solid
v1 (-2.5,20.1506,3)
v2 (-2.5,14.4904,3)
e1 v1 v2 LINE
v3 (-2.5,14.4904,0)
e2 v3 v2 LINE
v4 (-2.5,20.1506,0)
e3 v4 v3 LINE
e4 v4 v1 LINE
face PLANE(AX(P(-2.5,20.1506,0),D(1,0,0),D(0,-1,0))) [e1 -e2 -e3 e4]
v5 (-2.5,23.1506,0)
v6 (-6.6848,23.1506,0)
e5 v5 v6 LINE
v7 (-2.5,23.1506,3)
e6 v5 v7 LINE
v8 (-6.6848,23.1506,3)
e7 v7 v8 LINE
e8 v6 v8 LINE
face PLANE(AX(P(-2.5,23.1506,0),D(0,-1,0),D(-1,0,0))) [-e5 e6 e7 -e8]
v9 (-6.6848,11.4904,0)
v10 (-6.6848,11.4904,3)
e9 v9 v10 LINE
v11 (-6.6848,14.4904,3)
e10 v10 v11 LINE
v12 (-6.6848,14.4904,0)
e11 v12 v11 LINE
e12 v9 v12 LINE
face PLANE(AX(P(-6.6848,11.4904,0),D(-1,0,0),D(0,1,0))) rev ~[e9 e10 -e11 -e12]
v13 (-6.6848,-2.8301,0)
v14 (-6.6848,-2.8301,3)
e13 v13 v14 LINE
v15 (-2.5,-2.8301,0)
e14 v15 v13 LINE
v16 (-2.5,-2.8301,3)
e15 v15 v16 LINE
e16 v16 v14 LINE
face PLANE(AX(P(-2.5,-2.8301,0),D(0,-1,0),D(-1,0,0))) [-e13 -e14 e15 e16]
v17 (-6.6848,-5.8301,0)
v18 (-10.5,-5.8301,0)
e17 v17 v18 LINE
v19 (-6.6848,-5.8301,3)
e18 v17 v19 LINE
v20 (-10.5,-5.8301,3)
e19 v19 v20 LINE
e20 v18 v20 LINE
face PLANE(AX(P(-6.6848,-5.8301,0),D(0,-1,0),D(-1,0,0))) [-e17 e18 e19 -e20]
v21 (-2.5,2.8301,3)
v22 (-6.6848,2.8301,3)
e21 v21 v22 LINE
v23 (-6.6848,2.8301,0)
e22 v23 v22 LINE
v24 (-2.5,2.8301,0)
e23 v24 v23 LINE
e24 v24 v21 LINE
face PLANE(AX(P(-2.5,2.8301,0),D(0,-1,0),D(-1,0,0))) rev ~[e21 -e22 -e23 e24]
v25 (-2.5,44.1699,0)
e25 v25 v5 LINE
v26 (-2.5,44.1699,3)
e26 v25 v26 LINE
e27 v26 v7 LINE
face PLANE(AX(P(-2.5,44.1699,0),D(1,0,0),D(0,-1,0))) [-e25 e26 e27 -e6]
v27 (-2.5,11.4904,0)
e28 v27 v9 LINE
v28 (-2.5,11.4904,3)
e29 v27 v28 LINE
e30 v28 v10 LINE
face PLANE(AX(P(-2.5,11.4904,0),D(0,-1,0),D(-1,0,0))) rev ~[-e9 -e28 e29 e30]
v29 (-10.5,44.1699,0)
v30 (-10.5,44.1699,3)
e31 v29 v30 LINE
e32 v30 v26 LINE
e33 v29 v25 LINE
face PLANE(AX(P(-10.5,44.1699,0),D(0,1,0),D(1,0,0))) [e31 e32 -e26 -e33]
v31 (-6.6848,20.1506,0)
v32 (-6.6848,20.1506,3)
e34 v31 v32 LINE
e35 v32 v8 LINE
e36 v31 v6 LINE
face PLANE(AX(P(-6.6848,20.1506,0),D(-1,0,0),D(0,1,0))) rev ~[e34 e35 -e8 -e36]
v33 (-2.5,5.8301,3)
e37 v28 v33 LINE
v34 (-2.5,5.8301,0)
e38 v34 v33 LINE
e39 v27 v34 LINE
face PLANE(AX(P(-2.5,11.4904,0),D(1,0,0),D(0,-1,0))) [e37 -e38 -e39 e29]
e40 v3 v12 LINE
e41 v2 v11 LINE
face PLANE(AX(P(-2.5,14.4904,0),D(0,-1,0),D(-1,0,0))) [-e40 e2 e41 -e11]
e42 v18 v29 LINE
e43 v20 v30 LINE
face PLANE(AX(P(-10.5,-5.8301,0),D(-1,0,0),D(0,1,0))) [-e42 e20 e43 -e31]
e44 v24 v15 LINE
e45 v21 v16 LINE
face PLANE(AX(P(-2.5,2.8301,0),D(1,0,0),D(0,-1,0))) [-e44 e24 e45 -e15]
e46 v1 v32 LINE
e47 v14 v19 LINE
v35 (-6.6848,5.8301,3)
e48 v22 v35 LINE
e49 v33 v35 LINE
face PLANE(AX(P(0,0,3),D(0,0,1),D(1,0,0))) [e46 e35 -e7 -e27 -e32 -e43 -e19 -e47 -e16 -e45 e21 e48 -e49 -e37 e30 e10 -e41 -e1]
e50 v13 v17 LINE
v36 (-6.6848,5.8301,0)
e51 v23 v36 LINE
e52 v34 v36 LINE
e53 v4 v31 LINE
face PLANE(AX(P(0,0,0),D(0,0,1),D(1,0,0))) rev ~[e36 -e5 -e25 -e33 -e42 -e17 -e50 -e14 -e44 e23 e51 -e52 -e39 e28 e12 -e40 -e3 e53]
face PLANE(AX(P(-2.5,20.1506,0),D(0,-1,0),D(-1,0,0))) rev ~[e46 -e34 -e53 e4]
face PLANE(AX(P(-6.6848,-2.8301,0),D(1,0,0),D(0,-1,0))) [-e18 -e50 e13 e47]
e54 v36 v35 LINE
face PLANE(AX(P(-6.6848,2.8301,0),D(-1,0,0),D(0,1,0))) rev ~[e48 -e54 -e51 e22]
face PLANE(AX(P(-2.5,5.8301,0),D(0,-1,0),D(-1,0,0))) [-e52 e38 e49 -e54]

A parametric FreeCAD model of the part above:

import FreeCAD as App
import Part
import Sketcher
from FreeCAD import Vector
Q = App.Units.Quantity

doc = App.newDocument("Part")
params = doc.addObject("Spreadsheet::Sheet", "Params")
for row, (alias, value) in enumerate([
    ("sketch1_width", "8 mm"),
    ("sketch1_height", "3 mm"),
    ("sketch1_height2", "50 mm"),
    ("pad1_length", "3 mm"),
], start=1):
    params.set(f"A{row}", alias)
    params.set(f"B{row}", "=" + value)
    params.setAlias(f"B{row}", alias)

body = doc.addObject("PartDesign::Body", "Body")

# Sketch on XY plane
sketch1 = body.newObject("Sketcher::SketchObject", "Sketch")
sketch1.AttachmentSupport = (doc.getObject("XY_Plane"), [""])
sketch1.MapMode = "FlatFace"
sketch1.addGeometry([
    Part.LineSegment(Vector(-6.7, 5.8, 0), Vector(-2.5, 5.8, 0)),  # 0
    Part.LineSegment(Vector(-2.5, 5.8, 0), Vector(-2.5, 11.5, 0)),  # 1
    Part.LineSegment(Vector(-2.5, 11.5, 0), Vector(-6.7, 11.5, 0)),  # 2
    Part.LineSegment(Vector(-6.7, 11.5, 0), Vector(-6.7, 14.5, 0)),  # 3
    Part.LineSegment(Vector(-6.7, 14.5, 0), Vector(-2.5, 14.5, 0)),  # 4
    Part.LineSegment(Vector(-2.5, 14.5, 0), Vector(-2.5, 20.2, 0)),  # 5
    Part.LineSegment(Vector(-2.5, 20.2, 0), Vector(-6.7, 20.2, 0)),  # 6
    Part.LineSegment(Vector(-6.7, 20.2, 0), Vector(-6.7, 23.2, 0)),  # 7
    Part.LineSegment(Vector(-6.7, 23.2, 0), Vector(-2.5, 23.2, 0)),  # 8
    Part.LineSegment(Vector(-2.5, 23.2, 0), Vector(-2.5, 44.2, 0)),  # 9
    Part.LineSegment(Vector(-2.5, 44.2, 0), Vector(-10.5, 44.2, 0)),  # 10
    Part.LineSegment(Vector(-10.5, 44.2, 0), Vector(-10.5, -5.8, 0)),  # 11
    Part.LineSegment(Vector(-10.5, -5.8, 0), Vector(-6.7, -5.8, 0)),  # 12
    Part.LineSegment(Vector(-6.7, -5.8, 0), Vector(-6.7, -2.8, 0)),  # 13
    Part.LineSegment(Vector(-6.7, -2.8, 0), Vector(-2.5, -2.8, 0)),  # 14
    Part.LineSegment(Vector(-2.5, -2.8, 0), Vector(-2.5, 2.8, 0)),  # 15
    Part.LineSegment(Vector(-2.5, 2.8, 0), Vector(-6.7, 2.8, 0)),  # 16
    Part.LineSegment(Vector(-6.7, 2.8, 0), Vector(-6.7, 5.8, 0)),  # 17
], False)
sketch1.addConstraint([
    Sketcher.Constraint("Coincident", 0, 2, 1, 1),
    Sketcher.Constraint("Coincident", 1, 2, 2, 1),
    Sketcher.Constraint("Coincident", 2, 2, 3, 1),
    Sketcher.Constraint("Coincident", 3, 2, 4, 1),
    Sketcher.Constraint("Coincident", 4, 2, 5, 1),
    Sketcher.Constraint("Coincident", 5, 2, 6, 1),
    Sketcher.Constraint("Coincident", 6, 2, 7, 1),
    Sketcher.Constraint("Coincident", 7, 2, 8, 1),
    Sketcher.Constraint("Coincident", 8, 2, 9, 1),
    Sketcher.Constraint("Coincident", 9, 2, 10, 1),
    Sketcher.Constraint("Coincident", 10, 2, 11, 1),
    Sketcher.Constraint("Coincident", 11, 2, 12, 1),
    Sketcher.Constraint("Coincident", 12, 2, 13, 1),
    Sketcher.Constraint("Coincident", 13, 2, 14, 1),
    Sketcher.Constraint("Coincident", 14, 2, 15, 1),
    Sketcher.Constraint("Coincident", 15, 2, 16, 1),
    Sketcher.Constraint("Coincident", 16, 2, 17, 1),
    Sketcher.Constraint("Coincident", 17, 2, 0, 1),
    Sketcher.Constraint("Horizontal", 0),
    Sketcher.Constraint("Vertical", 1),
    Sketcher.Constraint("Horizontal", 2),
    Sketcher.Constraint("Vertical", 3),
    Sketcher.Constraint("Horizontal", 4),
    Sketcher.Constraint("Vertical", 5),
    Sketcher.Constraint("Horizontal", 6),
    Sketcher.Constraint("Vertical", 7),
    Sketcher.Constraint("Horizontal", 8),
    Sketcher.Constraint("Vertical", 9),
    Sketcher.Constraint("Horizontal", 10),
    Sketcher.Constraint("Vertical", 11),
    Sketcher.Constraint("Horizontal", 12),
    Sketcher.Constraint("Vertical", 13),
    Sketcher.Constraint("Horizontal", 14),
    Sketcher.Constraint("Vertical", 15),
    Sketcher.Constraint("Horizontal", 16),
    Sketcher.Constraint("Vertical", 17),
    Sketcher.Constraint("Symmetric", 13, 2, 16, 2, -1),
    Sketcher.Constraint("Vertical", 1, 2, 4, 2),
    Sketcher.Constraint("Vertical", 3, 2, 6, 2),
    Sketcher.Constraint("Vertical", 5, 2, 8, 2),
    Sketcher.Constraint("Vertical", 7, 2, 12, 2),
    Sketcher.Constraint("Vertical", 9, 2, 14, 2),
    Sketcher.Constraint("Equal", 1, 5),
    Sketcher.Constraint("Equal", 3, 7),
    Sketcher.Constraint("Equal", 7, 13),
    Sketcher.Constraint("Equal", 5, 15),
    Sketcher.Constraint("Equal", 13, 17),
    Sketcher.Constraint("DistanceX", 10, 2, 10, 1, Q("8 mm")),
    Sketcher.Constraint("DistanceY", 3, 1, 3, 2, Q("3 mm")),
    Sketcher.Constraint("DistanceY", 11, 2, 11, 1, Q("50 mm")),
    Sketcher.Constraint("DistanceX", 0, 2, -1, 1, Q("2.5 mm")),
    Sketcher.Constraint("DistanceY", -1, 1, 0, 2, Q("5.83 mm")),
    Sketcher.Constraint("DistanceX", 0, 1, 0, 2, Q("4.1848 mm")),
])
sketch1.setExpression("Constraints[47]", "Params.sketch1_width")
sketch1.setExpression("Constraints[48]", "Params.sketch1_height")
sketch1.setExpression("Constraints[49]", "Params.sketch1_height2")
pad1 = body.newObject("PartDesign::Pad", "Pad")
pad1.Profile = sketch1
pad1.setExpression("Length", "Params.pad1_length")

doc.recompute()
